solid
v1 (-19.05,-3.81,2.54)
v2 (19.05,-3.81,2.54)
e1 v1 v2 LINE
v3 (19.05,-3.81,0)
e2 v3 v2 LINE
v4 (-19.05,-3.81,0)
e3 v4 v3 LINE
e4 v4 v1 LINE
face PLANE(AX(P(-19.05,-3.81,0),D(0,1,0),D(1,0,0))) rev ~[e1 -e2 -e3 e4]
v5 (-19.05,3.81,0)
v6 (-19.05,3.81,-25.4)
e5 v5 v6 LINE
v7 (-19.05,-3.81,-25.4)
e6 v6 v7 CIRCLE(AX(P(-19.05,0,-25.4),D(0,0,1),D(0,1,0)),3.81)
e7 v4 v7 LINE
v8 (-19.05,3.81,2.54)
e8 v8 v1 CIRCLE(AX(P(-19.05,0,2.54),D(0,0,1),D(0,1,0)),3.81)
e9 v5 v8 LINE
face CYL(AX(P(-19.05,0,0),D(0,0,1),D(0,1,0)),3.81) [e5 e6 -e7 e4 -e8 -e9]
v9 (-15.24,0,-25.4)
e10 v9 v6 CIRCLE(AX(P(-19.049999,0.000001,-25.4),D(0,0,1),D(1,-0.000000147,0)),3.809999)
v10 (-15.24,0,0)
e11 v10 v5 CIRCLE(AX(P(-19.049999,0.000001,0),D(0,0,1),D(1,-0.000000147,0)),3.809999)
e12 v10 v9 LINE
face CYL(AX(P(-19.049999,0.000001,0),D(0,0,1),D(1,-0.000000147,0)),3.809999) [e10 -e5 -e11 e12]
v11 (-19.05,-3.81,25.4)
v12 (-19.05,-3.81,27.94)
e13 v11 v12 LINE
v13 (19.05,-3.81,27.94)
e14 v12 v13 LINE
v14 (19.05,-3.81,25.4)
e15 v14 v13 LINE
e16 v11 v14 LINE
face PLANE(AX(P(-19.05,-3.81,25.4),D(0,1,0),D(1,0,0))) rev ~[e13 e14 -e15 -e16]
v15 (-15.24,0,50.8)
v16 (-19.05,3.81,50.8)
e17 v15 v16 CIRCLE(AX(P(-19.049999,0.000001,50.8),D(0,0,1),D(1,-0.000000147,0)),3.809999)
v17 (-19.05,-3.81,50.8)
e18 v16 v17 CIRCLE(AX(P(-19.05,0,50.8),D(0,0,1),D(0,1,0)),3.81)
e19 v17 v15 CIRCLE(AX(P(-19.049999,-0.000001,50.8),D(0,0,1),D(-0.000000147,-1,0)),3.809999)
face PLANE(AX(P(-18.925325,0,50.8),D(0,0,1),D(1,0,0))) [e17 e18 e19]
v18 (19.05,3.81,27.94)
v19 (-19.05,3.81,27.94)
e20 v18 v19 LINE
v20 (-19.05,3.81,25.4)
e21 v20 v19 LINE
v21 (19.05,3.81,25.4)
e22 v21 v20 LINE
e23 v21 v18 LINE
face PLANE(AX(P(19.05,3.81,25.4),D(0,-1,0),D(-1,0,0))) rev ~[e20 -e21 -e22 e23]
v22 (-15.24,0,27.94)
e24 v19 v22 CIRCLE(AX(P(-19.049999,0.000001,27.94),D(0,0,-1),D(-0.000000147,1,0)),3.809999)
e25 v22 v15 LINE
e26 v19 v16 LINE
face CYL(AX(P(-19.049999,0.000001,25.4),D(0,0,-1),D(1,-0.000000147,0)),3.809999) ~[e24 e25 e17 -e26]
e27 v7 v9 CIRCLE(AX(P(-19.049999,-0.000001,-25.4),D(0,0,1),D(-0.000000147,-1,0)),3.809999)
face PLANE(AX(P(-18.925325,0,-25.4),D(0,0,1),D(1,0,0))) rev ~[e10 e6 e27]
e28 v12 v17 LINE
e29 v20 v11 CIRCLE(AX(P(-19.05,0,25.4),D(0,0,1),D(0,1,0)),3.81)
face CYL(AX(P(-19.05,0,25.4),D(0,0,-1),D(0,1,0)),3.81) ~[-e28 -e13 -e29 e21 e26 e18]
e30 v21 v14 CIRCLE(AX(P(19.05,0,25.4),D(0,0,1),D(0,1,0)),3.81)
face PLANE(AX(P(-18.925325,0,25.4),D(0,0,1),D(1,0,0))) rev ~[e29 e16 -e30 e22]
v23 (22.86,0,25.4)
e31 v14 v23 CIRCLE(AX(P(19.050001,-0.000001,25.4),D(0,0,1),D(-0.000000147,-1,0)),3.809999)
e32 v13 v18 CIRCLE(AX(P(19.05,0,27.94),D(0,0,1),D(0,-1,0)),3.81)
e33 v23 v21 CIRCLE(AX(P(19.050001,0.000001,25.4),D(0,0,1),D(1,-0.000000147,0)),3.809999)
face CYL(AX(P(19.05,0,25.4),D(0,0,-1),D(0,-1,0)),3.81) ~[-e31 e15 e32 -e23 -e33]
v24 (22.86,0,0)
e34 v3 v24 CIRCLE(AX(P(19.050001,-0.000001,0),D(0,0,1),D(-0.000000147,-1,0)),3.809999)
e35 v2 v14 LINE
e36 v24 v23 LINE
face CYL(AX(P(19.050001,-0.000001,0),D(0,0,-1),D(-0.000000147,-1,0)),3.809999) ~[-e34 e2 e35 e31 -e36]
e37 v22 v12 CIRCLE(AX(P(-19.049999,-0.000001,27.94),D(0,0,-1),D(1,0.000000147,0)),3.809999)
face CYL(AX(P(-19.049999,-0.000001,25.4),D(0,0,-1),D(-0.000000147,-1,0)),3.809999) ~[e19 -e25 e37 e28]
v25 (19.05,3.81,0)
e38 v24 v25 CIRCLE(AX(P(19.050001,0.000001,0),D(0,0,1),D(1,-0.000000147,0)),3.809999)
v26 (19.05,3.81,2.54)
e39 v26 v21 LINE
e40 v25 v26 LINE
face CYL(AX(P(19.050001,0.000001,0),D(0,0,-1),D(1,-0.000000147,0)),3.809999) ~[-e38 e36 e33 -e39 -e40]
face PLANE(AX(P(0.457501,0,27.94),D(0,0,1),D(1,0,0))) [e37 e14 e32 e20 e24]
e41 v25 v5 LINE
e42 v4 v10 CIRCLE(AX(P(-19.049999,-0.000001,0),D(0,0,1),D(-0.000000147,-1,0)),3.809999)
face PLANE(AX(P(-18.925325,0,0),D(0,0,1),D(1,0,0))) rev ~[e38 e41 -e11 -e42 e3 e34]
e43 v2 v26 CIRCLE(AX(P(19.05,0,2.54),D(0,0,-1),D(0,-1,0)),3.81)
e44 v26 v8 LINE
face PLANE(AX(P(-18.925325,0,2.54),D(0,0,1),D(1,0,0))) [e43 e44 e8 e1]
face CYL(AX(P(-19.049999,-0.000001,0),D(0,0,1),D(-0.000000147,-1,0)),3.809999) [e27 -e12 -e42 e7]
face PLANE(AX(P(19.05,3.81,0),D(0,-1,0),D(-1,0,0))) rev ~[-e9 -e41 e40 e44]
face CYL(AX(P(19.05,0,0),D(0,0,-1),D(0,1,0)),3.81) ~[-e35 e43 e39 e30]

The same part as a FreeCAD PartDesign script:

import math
import FreeCAD as App
import Part
import Sketcher
Q = App.Units.Quantity

doc = App.newDocument("Part")
body = doc.addObject("PartDesign::Body", "Body")

sketch1 = body.newObject("Sketcher::SketchObject", "Sketch")
sketch1.AttachmentSupport = (doc.getObject("XY_Plane"), [""])
sketch1.MapMode = "FlatFace"
sketch1.addGeometry([
    Part.LineSegment(App.Vector(-19.05, -3.81, 0), App.Vector(19.05, -3.81, 0)),
    Part.ArcOfCircle(Part.Circle(App.Vector(19.05, 0, 0), App.Vector(0, 0, 1), 3.81), math.radians(90), math.radians(270)),
    Part.LineSegment(App.Vector(19.05, 3.81, 0), App.Vector(-19.05, 3.81, 0)),
    Part.ArcOfCircle(Part.Circle(App.Vector(-19.049999, 0.000001, 0), App.Vector(0, 0, 1), 3.809999), math.radians(-0.000008), math.radians(90.000008)),
    Part.ArcOfCircle(Part.Circle(App.Vector(-19.049999, -0.000001, 0), App.Vector(0, 0, 1), 3.809999), math.radians(-90.000008), math.radians(0.000008)),
], False)
sketch1.addConstraint([
    Sketcher.Constraint("Tangent", 0, 2, 1, 2),
    Sketcher.Constraint("Tangent", 1, 1, 2, 1),
    Sketcher.Constraint("Tangent", 2, 2, 3, 2),
    Sketcher.Constraint("Tangent", 3, 1, 4, 2),
    Sketcher.Constraint("Tangent", 4, 1, 0, 1),
    Sketcher.Constraint("Horizontal", 0),
    Sketcher.Constraint("Horizontal", 2),
    Sketcher.Constraint("Equal", 1, 3),
    Sketcher.Constraint("Symmetric", 1, 3, 3, 3, -1, 1),
    Sketcher.Constraint("PointOnObject", 3, 1, -1),
    Sketcher.Constraint("Radius", 1, Q("0.15 in")),
    Sketcher.Constraint("DistanceX", 0, 1, 0, 2, Q("1.5 in")),
])
pad1 = body.newObject("PartDesign::Pad", "Pad")
pad1.Profile = sketch1
pad1.Length = Q("0.1 in")

sketch2 = body.newObject("Sketcher::SketchObject", "Sketch001")
sketch2.AttachmentSupport = (doc.getObject("XY_Plane"), [""])
sketch2.MapMode = "FlatFace"
sketch2.addGeometry([
    Part.ArcOfCircle(Part.Circle(App.Vector(19.05, 0, 0), App.Vector(0, 0, 1), 3.81), math.radians(90), math.radians(270)),
    Part.ArcOfCircle(Part.Circle(App.Vector(19.050001, -0.000001, 0), App.Vector(0, 0, 1), 3.809999), math.radians(-90.000008), math.radians(0.000008)),
    Part.ArcOfCircle(Part.Circle(App.Vector(19.050001, 0.000001, 0), App.Vector(0, 0, 1), 3.809999), math.radians(-0.000008), math.radians(90.000008)),
], False)
sketch2.addConstraint([
    Sketcher.Constraint("Tangent", 0, 2, 1, 1),
    Sketcher.Constraint("Tangent", 1, 2, 2, 1),
    Sketcher.Constraint("Tangent", 2, 2, 0, 1),
    Sketcher.Constraint("Symmetric", 0, 2, 2, 2, -1),
    Sketcher.Constraint("PointOnObject", 1, 2, -1),
    Sketcher.Constraint("Vertical", 2, 3, 0, 2),
    Sketcher.Constraint("Radius", 0, Q("0.15 in")),
    Sketcher.Constraint("DistanceX", -1, 1, 1, 2, Q("0.9 in")),
])
pad2 = body.newObject("PartDesign::Pad", "Pad001")
pad2.Profile = sketch2
pad2.Length = Q("1 in")

sketch3 = body.newObject("Sketcher::SketchObject", "Sketch002")
sketch3.AttachmentSupport = (doc.getObject("XY_Plane"), [""])
sketch3.MapMode = "FlatFace"
sketch3.AttachmentOffset = App.Placement(App.Vector(0, 0, 1 * 25.4), App.Rotation())
sketch3.addGeometry([
    Part.LineSegment(App.Vector(-19.05, -3.81, 0), App.Vector(19.05, -3.81, 0)),
    Part.ArcOfCircle(Part.Circle(App.Vector(19.05, 0, 0), App.Vector(0, 0, 1), 3.81), math.radians(-90), math.radians(90)),
    Part.LineSegment(App.Vector(19.05, 3.81, 0), App.Vector(-19.05, 3.81, 0)),
    Part.ArcOfCircle(Part.Circle(App.Vector(-19.049999, 0.000001, 0), App.Vector(0, 0, 1), 3.809999), math.radians(-0.000008), math.radians(90.000008)),
    Part.ArcOfCircle(Part.Circle(App.Vector(-19.049999, -0.000001, 0), App.Vector(0, 0, 1), 3.809999), math.radians(-90.000008), math.radians(0.000008)),
], False)
sketch3.addConstraint([
    Sketcher.Constraint("Tangent", 0, 2, 1, 1),
    Sketcher.Constraint("Tangent", 1, 2, 2, 1),
    Sketcher.Constraint("Tangent", 2, 2, 3, 2),
    Sketcher.Constraint("Tangent", 3, 1, 4, 2),
    Sketcher.Constraint("Tangent", 4, 1, 0, 1),
    Sketcher.Constraint("Horizontal", 0),
    Sketcher.Constraint("Horizontal", 2),
    Sketcher.Constraint("Equal", 1, 3),
    Sketcher.Constraint("Symmetric", 1, 3, 3, 3, -1, 1),
    Sketcher.Constraint("PointOnObject", 3, 1, -1),
    Sketcher.Constraint("Radius", 1, Q("0.15 in")),
    Sketcher.Constraint("DistanceX", 0, 1, 0, 2, Q("1.5 in")),
])
pad3 = body.newObject("PartDesign::Pad", "Pad002")
pad3.Profile = sketch3
pad3.Length = Q("0.1 in")

sketch4 = body.newObject("Sketcher::SketchObject", "Sketch003")
sketch4.AttachmentSupport = (doc.getObject("XY_Plane"), [""])
sketch4.MapMode = "FlatFace"
sketch4.AttachmentOffset = App.Placement(App.Vector(0, 0, 1 * 25.4), App.Rotation())
sketch4.addGeometry([
    Part.ArcOfCircle(Part.Circle(App.Vector(-19.05, 0, 0), App.Vector(0, 0, 1), 3.81), math.radians(90), math.radians(270)),
    Part.ArcOfCircle(Part.Circle(App.Vector(-19.049999, -0.000001, 0), App.Vector(0, 0, 1), 3.809999), math.radians(-90.000008), math.radians(0.000008)),
    Part.ArcOfCircle(Part.Circle(App.Vector(-19.049999, 0.000001, 0), App.Vector(0, 0, 1), 3.809999), math.radians(-0.000008), math.radians(90.000008)),
], False)
sketch4.addConstraint([
    Sketcher.Constraint("Tangent", 0, 2, 1, 1),
    Sketcher.Constraint("Tangent", 1, 2, 2, 1),
    Sketcher.Constraint("Tangent", 2, 2, 0, 1),
    Sketcher.Constraint("Symmetric", 0, 2, 2, 2, -1),
    Sketcher.Constraint("PointOnObject", 1, 2, -1),
    Sketcher.Constraint("Vertical", 2, 3, 0, 2),
    Sketcher.Constraint("Radius", 0, Q("0.15 in")),
    Sketcher.Constraint("DistanceX", 1, 2, -1, 1, Q("0.6 in")),
])
pad4 = body.newObject("PartDesign::Pad", "Pad003")
pad4.Profile = sketch4
pad4.Length = Q("1 in")

sketch5 = body.newObject("Sketcher::SketchObject", "Sketch004")
sketch5.AttachmentSupport = (doc.getObject("XY_Plane"), [""])
sketch5.MapMode = "FlatFace"
sketch5.addGeometry([
    Part.ArcOfCircle(Part.Circle(App.Vector(-19.05, 0, 0), App.Vector(0, 0, 1), 3.81), math.radians(90), math.radians(270)),
    Part.ArcOfCircle(Part.Circle(App.Vector(-19.049999, -0.000001, 0), App.Vector(0, 0, 1), 3.809999), math.radians(-90.000008), math.radians(0.000008)),
    Part.ArcOfCircle(Part.Circle(App.Vector(-19.049999, 0.000001, 0), App.Vector(0, 0, 1), 3.809999), math.radians(-0.000008), math.radians(90.000008)),
], False)
sketch5.addConstraint([
    Sketcher.Constraint("Tangent", 0, 2, 1, 1),
    Sketcher.Constraint("Tangent", 1, 2, 2, 1),
    Sketcher.Constraint("Tangent", 2, 2, 0, 1),
    Sketcher.Constraint("Symmetric", 0, 2, 2, 2, -1),
    Sketcher.Constraint("PointOnObject", 1, 2, -1),
    Sketcher.Constraint("Vertical", 2, 3, 0, 2),
    Sketcher.Constraint("Radius", 0, Q("0.15 in")),
    Sketcher.Constraint("DistanceX", 1, 2, -1, 1, Q("0.6 in")),
])
pad5 = body.newObject("PartDesign::Pad", "Pad004")
pad5.Profile = sketch5
pad5.Length = Q("0.1 in")

sketch6 = body.newObject("Sketcher::SketchObject", "Sketch005")
sketch6.AttachmentSupport = (doc.getObject("XY_Plane"), [""])
sketch6.MapMode = "FlatFace"
sketch6.addGeometry([
    Part.ArcOfCircle(Part.Circle(App.Vector(-19.05, 0, 0), App.Vector(0, 0, 1), 3.81), math.radians(90), math.radians(270)),
    Part.ArcOfCircle(Part.Circle(App.Vector(-19.049999, -0.000001, 0), App.Vector(0, 0, 1), 3.809999), math.radians(-90.000008), math.radians(0.000008)),
    Part.ArcOfCircle(Part.Circle(App.Vector(-19.049999, 0.000001, 0), App.Vector(0, 0, 1), 3.809999), math.radians(-0.000008), math.radians(90.000008)),
], False)
sketch6.addConstraint([
    Sketcher.Constraint("Tangent", 0, 2, 1, 1),
    Sketcher.Constraint("Tangent", 1, 2, 2, 1),
    Sketcher.Constraint("Tangent", 2, 2, 0, 1),
    Sketcher.Constraint("Symmetric", 0, 2, 2, 2, -1),
    Sketcher.Constraint("PointOnObject", 1, 2, -1),
    Sketcher.Constraint("Vertical", 2, 3, 0, 2),
    Sketcher.Constraint("Radius", 0, Q("0.15 in")),
    Sketcher.Constraint("DistanceX", 1, 2, -1, 1, Q("0.6 in")),
])
pad6 = body.newObject("PartDesign::Pad", "Pad005")
pad6.Profile = sketch6
pad6.Length = Q("1 in")
pad6.Reversed = True
body2 = doc.addObject("PartDesign::Body", "Body001")

sketch7 = body2.newObject("Sketcher::SketchObject", "Sketch006")
sketch7.AttachmentSupport = (doc.getObject("XY_Plane001"), [""])
sketch7.MapMode = "FlatFace"
sketch7.addGeometry([
    Part.ArcOfCircle(Part.Circle(App.Vector(-19.05, 0, 0), App.Vector(0, 0, 1), 3.81), math.radians(90), math.radians(270)),
    Part.ArcOfCircle(Part.Circle(App.Vector(-19.049999, -0.000001, 0), App.Vector(0, 0, 1), 3.809999), math.radians(-90.000008), math.radians(0.000008)),
    Part.ArcOfCircle(Part.Circle(App.Vector(-19.049999, 0.000001, 0), App.Vector(0, 0, 1), 3.809999), math.radians(-0.000008), math.radians(90.000008)),
], False)
sketch7.addConstraint([
    Sketcher.Constraint("Tangent", 0, 2, 1, 1),
    Sketcher.Constraint("Tangent", 1, 2, 2, 1),
    Sketcher.Constraint("Tangent", 2, 2, 0, 1),
    Sketcher.Constraint("Symmetric", 0, 2, 2, 2, -1),
    Sketcher.Constraint("PointOnObject", 1, 2, -1),
    Sketcher.Constraint("Vertical", 2, 3, 0, 2),
    Sketcher.Constraint("Radius", 0, Q("0.15 in")),
    Sketcher.Constraint("DistanceX", 1, 2, -1, 1, Q("0.6 in")),
])
pad7 = body2.newObject("PartDesign::Pad", "Pad006")
pad7.Profile = sketch7
pad7.Length = Q("0.5 in")
pad7.Reversed = True
body3 = doc.addObject("PartDesign::Body", "Body002")

sketch8 = body3.newObject("Sketcher::SketchObject", "Sketch007")
sketch8.AttachmentSupport = (doc.getObject("XY_Plane002"), [""])
sketch8.MapMode = "FlatFace"
sketch8.addGeometry([
    Part.ArcOfCircle(Part.Circle(App.Vector(-19.05, 0, 0), App.Vector(0, 0, 1), 3.81), math.radians(90), math.radians(270)),
    Part.ArcOfCircle(Part.Circle(App.Vector(-19.049999, -0.000001, 0), App.Vector(0, 0, 1), 3.809999), math.radians(-90.000008), math.radians(0.000008)),
    Part.ArcOfCircle(Part.Circle(App.Vector(-19.049999, 0.000001, 0), App.Vector(0, 0, 1), 3.809999), math.radians(-0.000008), math.radians(90.000008)),
], False)
sketch8.addConstraint([
    Sketcher.Constraint("Tangent", 0, 2, 1, 1),
    Sketcher.Constraint("Tangent", 1, 2, 2, 1),
    Sketcher.Constraint("Tangent", 2, 2, 0, 1),
    Sketcher.Constraint("Symmetric", 0, 2, 2, 2, -1),
    Sketcher.Constraint("PointOnObject", 1, 2, -1),
    Sketcher.Constraint("Vertical", 2, 3, 0, 2),
    Sketcher.Constraint("Radius", 0, Q("0.15 in")),
    Sketcher.Constraint("DistanceX", 1, 2, -1, 1, Q("0.6 in")),
])
pad8 = body3.newObject("PartDesign::Pad", "Pad007")
pad8.Profile = sketch8
pad8.Length = Q("0.1 in")
body2.Visibility = False
body3.Visibility = False

doc.recompute()
